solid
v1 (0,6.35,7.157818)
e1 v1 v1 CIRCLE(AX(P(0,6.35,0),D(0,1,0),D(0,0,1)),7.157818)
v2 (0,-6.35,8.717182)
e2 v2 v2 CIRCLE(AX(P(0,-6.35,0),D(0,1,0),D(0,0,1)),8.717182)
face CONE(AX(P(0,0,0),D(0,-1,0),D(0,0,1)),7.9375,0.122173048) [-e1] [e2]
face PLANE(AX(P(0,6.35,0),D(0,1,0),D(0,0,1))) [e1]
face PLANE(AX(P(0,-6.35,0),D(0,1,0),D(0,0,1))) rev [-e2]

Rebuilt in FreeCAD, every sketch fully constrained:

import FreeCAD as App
import Part
import Sketcher
Q = App.Units.Quantity

doc = App.newDocument("Part")
body = doc.addObject("PartDesign::Body", "Body")

sketch1 = body.newObject("Sketcher::SketchObject", "Sketch")
sketch1.AttachmentSupport = (doc.getObject("XZ_Plane"), [""])
sketch1.MapMode = "FlatFace"
sketch1.addGeometry(Part.Circle(App.Vector(0, 0, 0), App.Vector(0, 0, 1), 8), False)
sketch1.addConstraint([
    Sketcher.Constraint("Coincident", 0, 3, -1, 1),
    Sketcher.Constraint("Diameter", 0, Q("0.625 in")),
])
pad1 = body.newObject("PartDesign::Pad", "Pad")
pad1.Profile = sketch1
pad1.Length = Q("0.25 in")
pad1.Reversed = True
pad1.TaperAngle = -7

sketch2 = body.newObject("Sketcher::SketchObject", "Sketch001")
sketch2.AttachmentSupport = (doc.getObject("XZ_Plane"), [""])
sketch2.MapMode = "FlatFace"
sketch2.addGeometry(Part.Circle(App.Vector(0, 0, 0), App.Vector(0, 0, 1), 8), False)
sketch2.addConstraint([
    Sketcher.Constraint("Coincident", 0, 3, -1, 1),
    Sketcher.Constraint("Diameter", 0, Q("0.625 in")),
])
pad2 = body.newObject("PartDesign::Pad", "Pad001")
pad2.Profile = sketch2
pad2.Length = Q("0.25 in")
pad2.TaperAngle = 7

doc.recompute()
